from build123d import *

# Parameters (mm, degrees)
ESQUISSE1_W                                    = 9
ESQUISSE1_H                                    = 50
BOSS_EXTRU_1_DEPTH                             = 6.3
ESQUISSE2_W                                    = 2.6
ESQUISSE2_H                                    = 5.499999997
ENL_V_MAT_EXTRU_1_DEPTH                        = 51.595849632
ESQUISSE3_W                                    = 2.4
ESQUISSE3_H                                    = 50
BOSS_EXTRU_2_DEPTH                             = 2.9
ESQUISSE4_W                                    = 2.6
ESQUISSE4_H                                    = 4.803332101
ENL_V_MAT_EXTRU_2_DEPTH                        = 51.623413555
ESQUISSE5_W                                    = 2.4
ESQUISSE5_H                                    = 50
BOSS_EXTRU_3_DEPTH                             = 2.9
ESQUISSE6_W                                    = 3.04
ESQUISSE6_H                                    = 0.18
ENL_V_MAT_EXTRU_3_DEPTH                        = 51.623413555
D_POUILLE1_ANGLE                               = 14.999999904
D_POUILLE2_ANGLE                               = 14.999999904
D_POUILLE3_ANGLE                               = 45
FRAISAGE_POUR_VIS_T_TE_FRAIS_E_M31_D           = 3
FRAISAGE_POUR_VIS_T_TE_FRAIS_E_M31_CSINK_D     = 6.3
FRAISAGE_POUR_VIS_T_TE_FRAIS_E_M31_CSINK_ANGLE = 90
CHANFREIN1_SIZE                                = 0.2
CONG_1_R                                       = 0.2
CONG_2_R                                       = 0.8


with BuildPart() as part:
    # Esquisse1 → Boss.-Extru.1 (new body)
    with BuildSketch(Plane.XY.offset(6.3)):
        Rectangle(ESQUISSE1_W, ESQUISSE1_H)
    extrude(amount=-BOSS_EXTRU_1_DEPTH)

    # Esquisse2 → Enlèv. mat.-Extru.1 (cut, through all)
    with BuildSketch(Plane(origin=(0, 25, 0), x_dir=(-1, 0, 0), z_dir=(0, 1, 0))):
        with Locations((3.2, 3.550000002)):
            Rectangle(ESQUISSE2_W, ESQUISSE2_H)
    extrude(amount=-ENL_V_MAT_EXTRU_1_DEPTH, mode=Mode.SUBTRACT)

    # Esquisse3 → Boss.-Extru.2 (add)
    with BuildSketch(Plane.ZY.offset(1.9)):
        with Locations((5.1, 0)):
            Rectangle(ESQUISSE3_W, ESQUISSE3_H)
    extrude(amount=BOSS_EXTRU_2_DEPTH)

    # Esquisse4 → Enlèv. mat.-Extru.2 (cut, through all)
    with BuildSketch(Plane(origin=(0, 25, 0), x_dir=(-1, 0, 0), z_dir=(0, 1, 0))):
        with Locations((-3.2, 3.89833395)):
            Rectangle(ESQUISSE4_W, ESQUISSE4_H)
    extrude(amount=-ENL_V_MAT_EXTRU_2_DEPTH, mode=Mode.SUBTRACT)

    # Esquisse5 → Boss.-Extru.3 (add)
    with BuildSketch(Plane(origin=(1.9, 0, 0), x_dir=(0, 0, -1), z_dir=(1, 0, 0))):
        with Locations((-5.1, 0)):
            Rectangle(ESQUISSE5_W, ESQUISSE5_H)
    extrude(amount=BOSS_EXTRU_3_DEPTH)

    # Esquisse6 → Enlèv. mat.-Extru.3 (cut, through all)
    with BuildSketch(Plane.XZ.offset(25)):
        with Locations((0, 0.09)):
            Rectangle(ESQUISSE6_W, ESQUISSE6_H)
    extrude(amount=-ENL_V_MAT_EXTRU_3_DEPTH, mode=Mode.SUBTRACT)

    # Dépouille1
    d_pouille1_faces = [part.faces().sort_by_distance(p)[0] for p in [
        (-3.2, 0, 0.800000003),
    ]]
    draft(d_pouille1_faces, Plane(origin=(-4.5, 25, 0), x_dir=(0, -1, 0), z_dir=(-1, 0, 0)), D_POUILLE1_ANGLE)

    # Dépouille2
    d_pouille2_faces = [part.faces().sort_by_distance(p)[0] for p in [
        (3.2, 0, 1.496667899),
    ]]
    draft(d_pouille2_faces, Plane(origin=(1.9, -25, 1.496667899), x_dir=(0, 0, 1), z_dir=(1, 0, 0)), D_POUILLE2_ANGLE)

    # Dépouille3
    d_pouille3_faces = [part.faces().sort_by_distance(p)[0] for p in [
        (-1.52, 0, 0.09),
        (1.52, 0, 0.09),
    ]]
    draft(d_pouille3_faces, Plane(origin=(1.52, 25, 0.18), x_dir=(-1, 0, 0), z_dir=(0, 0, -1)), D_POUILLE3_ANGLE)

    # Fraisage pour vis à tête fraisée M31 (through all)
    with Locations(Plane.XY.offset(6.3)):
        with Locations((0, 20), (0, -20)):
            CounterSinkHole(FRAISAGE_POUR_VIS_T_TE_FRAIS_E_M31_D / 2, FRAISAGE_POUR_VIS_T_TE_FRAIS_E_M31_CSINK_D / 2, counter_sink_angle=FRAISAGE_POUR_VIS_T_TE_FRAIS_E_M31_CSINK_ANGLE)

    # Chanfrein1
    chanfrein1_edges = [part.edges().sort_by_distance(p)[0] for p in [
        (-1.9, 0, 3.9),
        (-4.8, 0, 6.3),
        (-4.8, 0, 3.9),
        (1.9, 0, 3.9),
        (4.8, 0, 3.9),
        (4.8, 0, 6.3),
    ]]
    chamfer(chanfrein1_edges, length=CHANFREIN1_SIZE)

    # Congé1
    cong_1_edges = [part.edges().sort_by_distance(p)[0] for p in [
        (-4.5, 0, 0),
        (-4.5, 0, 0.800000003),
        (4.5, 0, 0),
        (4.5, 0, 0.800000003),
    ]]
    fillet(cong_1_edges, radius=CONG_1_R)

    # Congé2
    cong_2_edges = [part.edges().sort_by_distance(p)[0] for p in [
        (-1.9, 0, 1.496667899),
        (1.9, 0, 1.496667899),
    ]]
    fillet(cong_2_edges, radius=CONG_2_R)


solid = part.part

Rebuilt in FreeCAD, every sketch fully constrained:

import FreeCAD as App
import Part
import Sketcher
from FreeCAD import Vector
Q = App.Units.Quantity


def edges_at(feature, points):
    """Names of the edges that pass closest to the given points."""
    edges = feature.Shape.Edges
    near = lambda p: min(range(len(edges)), key=lambda i: edges[i].distToShape(Part.Vertex(*p))[0])
    return sorted({f"Edge{near(p) + 1}" for p in points})


def faces_at(feature, points):
    """Names of the faces that lie closest to the given points."""
    faces = feature.Shape.Faces
    near = lambda p: min(range(len(faces)), key=lambda i: faces[i].distToShape(Part.Vertex(*p))[0])
    return sorted({f"Face{near(p) + 1}" for p in points})

doc = App.newDocument("Part")
body = doc.addObject("PartDesign::Body", "Body")

sketch1 = body.newObject("Sketcher::SketchObject", "Sketch")
sketch1.AttachmentSupport = (doc.getObject("XY_Plane"), [""])
sketch1.MapMode = "FlatFace"
sketch1.AttachmentOffset = App.Placement(Vector(0, 0, 6.3), App.Rotation())
sketch1.addGeometry(Part.LineSegment(Vector(-4, 25, 0), Vector(-4, -25, 0)), False)
sketch1.addGeometry(Part.LineSegment(Vector(-4, -25, 0), Vector(4, -25, 0)), False)
sketch1.addGeometry(Part.LineSegment(Vector(4, -25, 0), Vector(4, 25, 0)), False)
sketch1.addGeometry(Part.LineSegment(Vector(4, 25, 0), Vector(-4, 25, 0)), False)
sketch1.addConstraint(Sketcher.Constraint("Coincident", 0, 2, 1, 1))
sketch1.addConstraint(Sketcher.Constraint("Coincident", 1, 2, 2, 1))
sketch1.addConstraint(Sketcher.Constraint("Coincident", 2, 2, 3, 1))
sketch1.addConstraint(Sketcher.Constraint("Coincident", 3, 2, 0, 1))
sketch1.addConstraint(Sketcher.Constraint("Vertical", 0))
sketch1.addConstraint(Sketcher.Constraint("Horizontal", 1))
sketch1.addConstraint(Sketcher.Constraint("Vertical", 2))
sketch1.addConstraint(Sketcher.Constraint("Horizontal", 3))
sketch1.addConstraint(Sketcher.Constraint("Symmetric", 0, 2, 2, 2, -1, 1))
sketch1.addConstraint(Sketcher.Constraint("DistanceX", 1, 1, 1, 2, Q("9 mm")))
sketch1.addConstraint(Sketcher.Constraint("DistanceY", 0, 2, 0, 1, Q("50 mm")))
pad1 = body.newObject("PartDesign::Pad", "Pad")
pad1.Profile = sketch1
pad1.Length = 6.3
pad1.Reversed = True

sketch2 = body.newObject("Sketcher::SketchObject", "Sketch001")
sketch2.AttachmentSupport = (doc.getObject("XZ_Plane"), [""])
sketch2.MapMode = "FlatFace"
sketch2.AttachmentOffset = App.Placement(Vector(0, 0, -25), App.Rotation())
sketch2.addGeometry(Part.LineSegment(Vector(-1.9, 6.3, 0), Vector(-1.9, 0.8, 0)), False)
sketch2.addGeometry(Part.LineSegment(Vector(-1.9, 0.8, 0), Vector(-4.5, 0.8, 0)), False)
sketch2.addGeometry(Part.LineSegment(Vector(-4.5, 0.8, 0), Vector(-4.5, 6.3, 0)), False)
sketch2.addGeometry(Part.LineSegment(Vector(-4.5, 6.3, 0), Vector(-1.9, 6.3, 0)), False)
sketch2.addConstraint(Sketcher.Constraint("Coincident", 0, 2, 1, 1))
sketch2.addConstraint(Sketcher.Constraint("Coincident", 1, 2, 2, 1))
sketch2.addConstraint(Sketcher.Constraint("Coincident", 2, 2, 3, 1))
sketch2.addConstraint(Sketcher.Constraint("Coincident", 3, 2, 0, 1))
sketch2.addConstraint(Sketcher.Constraint("Vertical", 0))
sketch2.addConstraint(Sketcher.Constraint("Horizontal", 1))
sketch2.addConstraint(Sketcher.Constraint("Vertical", 2))
sketch2.addConstraint(Sketcher.Constraint("Horizontal", 3))
sketch2.addConstraint(Sketcher.Constraint("DistanceX", 1, 2, 1, 1, Q("2.6 mm")))
sketch2.addConstraint(Sketcher.Constraint("DistanceY", 0, 2, 0, 1, Q("5.5 mm")))
sketch2.addConstraint(Sketcher.Constraint("DistanceX", 0, 2, -1, 1, Q("1.9 mm")))
sketch2.addConstraint(Sketcher.Constraint("DistanceY", -1, 1, 0, 2, Q("0.8 mm")))
pocket1 = body.newObject("PartDesign::Pocket", "Pocket")
pocket1.Profile = sketch2
pocket1.Type = "ThroughAll"
pocket1.Reversed = True

sketch3 = body.newObject("Sketcher::SketchObject", "Sketch002")
sketch3.AttachmentSupport = (doc.getObject("YZ_Plane"), [""])
sketch3.MapMode = "FlatFace"
sketch3.AttachmentOffset = App.Placement(Vector(0, 0, -1.9), App.Rotation())
sketch3.addGeometry(Part.LineSegment(Vector(25, 3.9, 0), Vector(-25, 3.9, 0)), False)
sketch3.addGeometry(Part.LineSegment(Vector(-25, 3.9, 0), Vector(-25, 6.3, 0)), False)
sketch3.addGeometry(Part.LineSegment(Vector(-25, 6.3, 0), Vector(25, 6.3, 0)), False)
sketch3.addGeometry(Part.LineSegment(Vector(25, 6.3, 0), Vector(25, 3.9, 0)), False)
sketch3.addConstraint(Sketcher.Constraint("Coincident", 0, 2, 1, 1))
sketch3.addConstraint(Sketcher.Constraint("Coincident", 1, 2, 2, 1))
sketch3.addConstraint(Sketcher.Constraint("Coincident", 2, 2, 3, 1))
sketch3.addConstraint(Sketcher.Constraint("Coincident", 3, 2, 0, 1))
sketch3.addConstraint(Sketcher.Constraint("Horizontal", 0))
sketch3.addConstraint(Sketcher.Constraint("Vertical", 1))
sketch3.addConstraint(Sketcher.Constraint("Horizontal", 2))
sketch3.addConstraint(Sketcher.Constraint("Vertical", 3))
sketch3.addConstraint(Sketcher.Constraint("DistanceX", 0, 2, 0, 1, Q("50 mm")))
sketch3.addConstraint(Sketcher.Constraint("DistanceY", 1, 1, 1, 2, Q("2.4 mm")))
sketch3.addConstraint(Sketcher.Constraint("DistanceX", 0, 2, -1, 1, Q("25 mm")))
sketch3.addConstraint(Sketcher.Constraint("DistanceY", -1, 1, 0, 2, Q("3.9 mm")))
pad2 = body.newObject("PartDesign::Pad", "Pad001")
pad2.Profile = sketch3
pad2.Length = 2.9
pad2.Reversed = True

sketch4 = body.newObject("Sketcher::SketchObject", "Sketch003")
sketch4.AttachmentSupport = (doc.getObject("XZ_Plane"), [""])
sketch4.MapMode = "FlatFace"
sketch4.AttachmentOffset = App.Placement(Vector(0, 0, -25), App.Rotation())
sketch4.addGeometry(Part.LineSegment(Vector(4.5, 6.3, 0), Vector(4.5, 1.5, 0)), False)
sketch4.addGeometry(Part.LineSegment(Vector(4.5, 1.5, 0), Vector(1.9, 1.5, 0)), False)
sketch4.addGeometry(Part.LineSegment(Vector(1.9, 1.5, 0), Vector(1.9, 6.3, 0)), False)
sketch4.addGeometry(Part.LineSegment(Vector(1.9, 6.3, 0), Vector(4.5, 6.3, 0)), False)
sketch4.addConstraint(Sketcher.Constraint("Coincident", 0, 2, 1, 1))
sketch4.addConstraint(Sketcher.Constraint("Coincident", 1, 2, 2, 1))
sketch4.addConstraint(Sketcher.Constraint("Coincident", 2, 2, 3, 1))
sketch4.addConstraint(Sketcher.Constraint("Coincident", 3, 2, 0, 1))
sketch4.addConstraint(Sketcher.Constraint("Vertical", 0))
sketch4.addConstraint(Sketcher.Constraint("Horizontal", 1))
sketch4.addConstraint(Sketcher.Constraint("Vertical", 2))
sketch4.addConstraint(Sketcher.Constraint("Horizontal", 3))
sketch4.addConstraint(Sketcher.Constraint("DistanceX", 1, 2, 1, 1, Q("2.6 mm")))
sketch4.addConstraint(Sketcher.Constraint("DistanceX", -1, 1, 0, 2, Q("4.5 mm")))
sketch4.addConstraint(Sketcher.Constraint("DistanceY", -1, 1, 2, 2, Q("6.3 mm")))
sketch4.addConstraint(Sketcher.Constraint("DistanceY", 0, 2, 0, 1, Q("4.803332 mm")))
pocket2 = body.newObject("PartDesign::Pocket", "Pocket001")
pocket2.Profile = sketch4
pocket2.Type = "ThroughAll"
pocket2.Reversed = True

sketch5 = body.newObject("Sketcher::SketchObject", "Sketch004")
sketch5.AttachmentSupport = (doc.getObject("YZ_Plane"), [""])
sketch5.MapMode = "FlatFace"
sketch5.AttachmentOffset = App.Placement(Vector(0, 0, 1.9), App.Rotation())
sketch5.addGeometry(Part.LineSegment(Vector(25, 6.3, 0), Vector(-25, 6.3, 0)), False)
sketch5.addGeometry(Part.LineSegment(Vector(-25, 6.3, 0), Vector(-25, 3.9, 0)), False)
sketch5.addGeometry(Part.LineSegment(Vector(-25, 3.9, 0), Vector(25, 3.9, 0)), False)
sketch5.addGeometry(Part.LineSegment(Vector(25, 3.9, 0), Vector(25, 6.3, 0)), False)
sketch5.addConstraint(Sketcher.Constraint("Coincident", 0, 2, 1, 1))
sketch5.addConstraint(Sketcher.Constraint("Coincident", 1, 2, 2, 1))
sketch5.addConstraint(Sketcher.Constraint("Coincident", 2, 2, 3, 1))
sketch5.addConstraint(Sketcher.Constraint("Coincident", 3, 2, 0, 1))
sketch5.addConstraint(Sketcher.Constraint("Horizontal", 0))
sketch5.addConstraint(Sketcher.Constraint("Vertical", 1))
sketch5.addConstraint(Sketcher.Constraint("Horizontal", 2))
sketch5.addConstraint(Sketcher.Constraint("Vertical", 3))
sketch5.addConstraint(Sketcher.Constraint("DistanceX", 0, 2, 0, 1, Q("50 mm")))
sketch5.addConstraint(Sketcher.Constraint("DistanceY", 1, 2, 1, 1, Q("2.4 mm")))
sketch5.addConstraint(Sketcher.Constraint("DistanceX", 0, 2, -1, 1, Q("25 mm")))
sketch5.addConstraint(Sketcher.Constraint("DistanceY", -1, 1, 0, 2, Q("6.3 mm")))
pad3 = body.newObject("PartDesign::Pad", "Pad002")
pad3.Profile = sketch5
pad3.Length = 2.9

sketch6 = body.newObject("Sketcher::SketchObject", "Sketch005")
sketch6.AttachmentSupport = (doc.getObject("XZ_Plane"), [""])
sketch6.MapMode = "FlatFace"
sketch6.AttachmentOffset = App.Placement(Vector(0, 0, 25), App.Rotation())
sketch6.addGeometry(Part.LineSegment(Vector(-1.52, 0.18, 0), Vector(-1.52, 0, 0)), False)
sketch6.addGeometry(Part.LineSegment(Vector(-1.52, 0, 0), Vector(1.52, 0, 0)), False)
sketch6.addGeometry(Part.LineSegment(Vector(1.52, 0, 0), Vector(1.52, 0.18, 0)), False)
sketch6.addGeometry(Part.LineSegment(Vector(1.52, 0.18, 0), Vector(-1.52, 0.18, 0)), False)
sketch6.addConstraint(Sketcher.Constraint("Coincident", 0, 2, 1, 1))
sketch6.addConstraint(Sketcher.Constraint("Coincident", 1, 2, 2, 1))
sketch6.addConstraint(Sketcher.Constraint("Coincident", 2, 2, 3, 1))
sketch6.addConstraint(Sketcher.Constraint("Coincident", 3, 2, 0, 1))
sketch6.addConstraint(Sketcher.Constraint("Vertical", 0))
sketch6.addConstraint(Sketcher.Constraint("Horizontal", 1))
sketch6.addConstraint(Sketcher.Constraint("Vertical", 2))
sketch6.addConstraint(Sketcher.Constraint("Horizontal", 3))
sketch6.addConstraint(Sketcher.Constraint("Symmetric", 0, 2, 1, 2, -1, 1))
sketch6.addConstraint(Sketcher.Constraint("DistanceX", 1, 1, 1, 2, Q("3.04 mm")))
sketch6.addConstraint(Sketcher.Constraint("DistanceY", 0, 2, 0, 1, Q("0.18 mm")))
pocket3 = body.newObject("PartDesign::Pocket", "Pocket002")
pocket3.Profile = sketch6
pocket3.Type = "ThroughAll"
doc.recompute()

datumplane = body.newObject("PartDesign::Plane", "DatumPlane")
datumplane.AttachmentSupport = (doc.getObject("YZ_Plane"), [""])
datumplane.MapMode = "FlatFace"
datumplane.AttachmentOffset = App.Placement(Vector(0, 0, -4.5), App.Rotation())
draft = body.newObject("PartDesign::Draft", "Draft")
draft.Base = (pocket3, faces_at(pocket3, [(-3.2, 0, 0.8)]))
draft.NeutralPlane = (datumplane, [""])
draft.Angle = 15
draft.Reversed = True
doc.recompute()

datumplane2 = body.newObject("PartDesign::Plane", "DatumPlane001")
datumplane2.AttachmentSupport = (doc.getObject("YZ_Plane"), [""])
datumplane2.MapMode = "FlatFace"
datumplane2.AttachmentOffset = App.Placement(Vector(0, 0, 1.9), App.Rotation())
draft2 = body.newObject("PartDesign::Draft", "Draft001")
draft2.Base = (draft, faces_at(draft, [(3.2, 0, 1.497)]))
draft2.NeutralPlane = (datumplane2, [""])
draft2.Angle = 15
draft2.Reversed = False
doc.recompute()

datumplane3 = body.newObject("PartDesign::Plane", "DatumPlane002")
datumplane3.AttachmentSupport = (doc.getObject("XY_Plane"), [""])
datumplane3.MapMode = "FlatFace"
datumplane3.AttachmentOffset = App.Placement(Vector(0, 0, 0.18), App.Rotation())
draft3 = body.newObject("PartDesign::Draft", "Draft002")
draft3.Base = (draft2, faces_at(draft2, [(-1.52, 0, 0.09), (1.52, 0, 0.09)]))
draft3.NeutralPlane = (datumplane3, [""])
draft3.Angle = 45
draft3.Reversed = True

sketch7 = body.newObject("Sketcher::SketchObject", "Sketch006")
sketch7.AttachmentSupport = (doc.getObject("XY_Plane"), [""])
sketch7.MapMode = "FlatFace"
sketch7.AttachmentOffset = App.Placement(Vector(0, 0, 6.3), App.Rotation())
sketch7.addGeometry(Part.Circle(Vector(0, 20, 0), Vector(0, 0, 1), 1.5), False)
sketch7.addGeometry(Part.Circle(Vector(0, -20, 0), Vector(0, 0, 1), 1.5), False)
sketch7.addConstraint(Sketcher.Constraint("Equal", 0, 1))
sketch7.addConstraint(Sketcher.Constraint("Symmetric", 0, 3, 1, 3, -1, 1))
sketch7.addConstraint(Sketcher.Constraint("PointOnObject", 0, 3, -2))
sketch7.addConstraint(Sketcher.Constraint("Diameter", 0, Q("3 mm")))
sketch7.addConstraint(Sketcher.Constraint("DistanceY", -1, 1, 0, 3, Q("20 mm")))
doc.recompute()
hole = body.newObject("PartDesign::Hole", "Hole")
hole.Profile = sketch7
hole.ThreadType = "None"
hole.Diameter = 3
hole.DepthType = "ThroughAll"
hole.HoleCutType = "Countersink"
hole.HoleCutDiameter = 6.3
hole.HoleCutCountersinkAngle = 90
doc.recompute()

chamfer = body.newObject("PartDesign::Chamfer", "Chamfer")
chamfer.Base = (hole, edges_at(hole, [
    (-1.9, 0, 3.9),
    (-4.8, 0, 6.3),
    (-4.8, 0, 3.9),
    (1.9, 0, 3.9),
    (4.8, 0, 3.9),
    (4.8, 0, 6.3),
]))
chamfer.Size = 0.2
doc.recompute()

fillet = body.newObject("PartDesign::Fillet", "Fillet")
fillet.Base = (chamfer, edges_at(chamfer, [
    (-4.5, 0, 0),
    (-4.5, 0, 0.8),
    (4.5, 0, 0),
    (4.5, 0, 0.8),
]))
fillet.Radius = 0.2
doc.recompute()

fillet2 = body.newObject("PartDesign::Fillet", "Fillet001")
fillet2.Base = (fillet, edges_at(fillet, [(-1.9, 0, 1.497), (1.9, 0, 1.497)]))
fillet2.Radius = 0.8

doc.recompute()
